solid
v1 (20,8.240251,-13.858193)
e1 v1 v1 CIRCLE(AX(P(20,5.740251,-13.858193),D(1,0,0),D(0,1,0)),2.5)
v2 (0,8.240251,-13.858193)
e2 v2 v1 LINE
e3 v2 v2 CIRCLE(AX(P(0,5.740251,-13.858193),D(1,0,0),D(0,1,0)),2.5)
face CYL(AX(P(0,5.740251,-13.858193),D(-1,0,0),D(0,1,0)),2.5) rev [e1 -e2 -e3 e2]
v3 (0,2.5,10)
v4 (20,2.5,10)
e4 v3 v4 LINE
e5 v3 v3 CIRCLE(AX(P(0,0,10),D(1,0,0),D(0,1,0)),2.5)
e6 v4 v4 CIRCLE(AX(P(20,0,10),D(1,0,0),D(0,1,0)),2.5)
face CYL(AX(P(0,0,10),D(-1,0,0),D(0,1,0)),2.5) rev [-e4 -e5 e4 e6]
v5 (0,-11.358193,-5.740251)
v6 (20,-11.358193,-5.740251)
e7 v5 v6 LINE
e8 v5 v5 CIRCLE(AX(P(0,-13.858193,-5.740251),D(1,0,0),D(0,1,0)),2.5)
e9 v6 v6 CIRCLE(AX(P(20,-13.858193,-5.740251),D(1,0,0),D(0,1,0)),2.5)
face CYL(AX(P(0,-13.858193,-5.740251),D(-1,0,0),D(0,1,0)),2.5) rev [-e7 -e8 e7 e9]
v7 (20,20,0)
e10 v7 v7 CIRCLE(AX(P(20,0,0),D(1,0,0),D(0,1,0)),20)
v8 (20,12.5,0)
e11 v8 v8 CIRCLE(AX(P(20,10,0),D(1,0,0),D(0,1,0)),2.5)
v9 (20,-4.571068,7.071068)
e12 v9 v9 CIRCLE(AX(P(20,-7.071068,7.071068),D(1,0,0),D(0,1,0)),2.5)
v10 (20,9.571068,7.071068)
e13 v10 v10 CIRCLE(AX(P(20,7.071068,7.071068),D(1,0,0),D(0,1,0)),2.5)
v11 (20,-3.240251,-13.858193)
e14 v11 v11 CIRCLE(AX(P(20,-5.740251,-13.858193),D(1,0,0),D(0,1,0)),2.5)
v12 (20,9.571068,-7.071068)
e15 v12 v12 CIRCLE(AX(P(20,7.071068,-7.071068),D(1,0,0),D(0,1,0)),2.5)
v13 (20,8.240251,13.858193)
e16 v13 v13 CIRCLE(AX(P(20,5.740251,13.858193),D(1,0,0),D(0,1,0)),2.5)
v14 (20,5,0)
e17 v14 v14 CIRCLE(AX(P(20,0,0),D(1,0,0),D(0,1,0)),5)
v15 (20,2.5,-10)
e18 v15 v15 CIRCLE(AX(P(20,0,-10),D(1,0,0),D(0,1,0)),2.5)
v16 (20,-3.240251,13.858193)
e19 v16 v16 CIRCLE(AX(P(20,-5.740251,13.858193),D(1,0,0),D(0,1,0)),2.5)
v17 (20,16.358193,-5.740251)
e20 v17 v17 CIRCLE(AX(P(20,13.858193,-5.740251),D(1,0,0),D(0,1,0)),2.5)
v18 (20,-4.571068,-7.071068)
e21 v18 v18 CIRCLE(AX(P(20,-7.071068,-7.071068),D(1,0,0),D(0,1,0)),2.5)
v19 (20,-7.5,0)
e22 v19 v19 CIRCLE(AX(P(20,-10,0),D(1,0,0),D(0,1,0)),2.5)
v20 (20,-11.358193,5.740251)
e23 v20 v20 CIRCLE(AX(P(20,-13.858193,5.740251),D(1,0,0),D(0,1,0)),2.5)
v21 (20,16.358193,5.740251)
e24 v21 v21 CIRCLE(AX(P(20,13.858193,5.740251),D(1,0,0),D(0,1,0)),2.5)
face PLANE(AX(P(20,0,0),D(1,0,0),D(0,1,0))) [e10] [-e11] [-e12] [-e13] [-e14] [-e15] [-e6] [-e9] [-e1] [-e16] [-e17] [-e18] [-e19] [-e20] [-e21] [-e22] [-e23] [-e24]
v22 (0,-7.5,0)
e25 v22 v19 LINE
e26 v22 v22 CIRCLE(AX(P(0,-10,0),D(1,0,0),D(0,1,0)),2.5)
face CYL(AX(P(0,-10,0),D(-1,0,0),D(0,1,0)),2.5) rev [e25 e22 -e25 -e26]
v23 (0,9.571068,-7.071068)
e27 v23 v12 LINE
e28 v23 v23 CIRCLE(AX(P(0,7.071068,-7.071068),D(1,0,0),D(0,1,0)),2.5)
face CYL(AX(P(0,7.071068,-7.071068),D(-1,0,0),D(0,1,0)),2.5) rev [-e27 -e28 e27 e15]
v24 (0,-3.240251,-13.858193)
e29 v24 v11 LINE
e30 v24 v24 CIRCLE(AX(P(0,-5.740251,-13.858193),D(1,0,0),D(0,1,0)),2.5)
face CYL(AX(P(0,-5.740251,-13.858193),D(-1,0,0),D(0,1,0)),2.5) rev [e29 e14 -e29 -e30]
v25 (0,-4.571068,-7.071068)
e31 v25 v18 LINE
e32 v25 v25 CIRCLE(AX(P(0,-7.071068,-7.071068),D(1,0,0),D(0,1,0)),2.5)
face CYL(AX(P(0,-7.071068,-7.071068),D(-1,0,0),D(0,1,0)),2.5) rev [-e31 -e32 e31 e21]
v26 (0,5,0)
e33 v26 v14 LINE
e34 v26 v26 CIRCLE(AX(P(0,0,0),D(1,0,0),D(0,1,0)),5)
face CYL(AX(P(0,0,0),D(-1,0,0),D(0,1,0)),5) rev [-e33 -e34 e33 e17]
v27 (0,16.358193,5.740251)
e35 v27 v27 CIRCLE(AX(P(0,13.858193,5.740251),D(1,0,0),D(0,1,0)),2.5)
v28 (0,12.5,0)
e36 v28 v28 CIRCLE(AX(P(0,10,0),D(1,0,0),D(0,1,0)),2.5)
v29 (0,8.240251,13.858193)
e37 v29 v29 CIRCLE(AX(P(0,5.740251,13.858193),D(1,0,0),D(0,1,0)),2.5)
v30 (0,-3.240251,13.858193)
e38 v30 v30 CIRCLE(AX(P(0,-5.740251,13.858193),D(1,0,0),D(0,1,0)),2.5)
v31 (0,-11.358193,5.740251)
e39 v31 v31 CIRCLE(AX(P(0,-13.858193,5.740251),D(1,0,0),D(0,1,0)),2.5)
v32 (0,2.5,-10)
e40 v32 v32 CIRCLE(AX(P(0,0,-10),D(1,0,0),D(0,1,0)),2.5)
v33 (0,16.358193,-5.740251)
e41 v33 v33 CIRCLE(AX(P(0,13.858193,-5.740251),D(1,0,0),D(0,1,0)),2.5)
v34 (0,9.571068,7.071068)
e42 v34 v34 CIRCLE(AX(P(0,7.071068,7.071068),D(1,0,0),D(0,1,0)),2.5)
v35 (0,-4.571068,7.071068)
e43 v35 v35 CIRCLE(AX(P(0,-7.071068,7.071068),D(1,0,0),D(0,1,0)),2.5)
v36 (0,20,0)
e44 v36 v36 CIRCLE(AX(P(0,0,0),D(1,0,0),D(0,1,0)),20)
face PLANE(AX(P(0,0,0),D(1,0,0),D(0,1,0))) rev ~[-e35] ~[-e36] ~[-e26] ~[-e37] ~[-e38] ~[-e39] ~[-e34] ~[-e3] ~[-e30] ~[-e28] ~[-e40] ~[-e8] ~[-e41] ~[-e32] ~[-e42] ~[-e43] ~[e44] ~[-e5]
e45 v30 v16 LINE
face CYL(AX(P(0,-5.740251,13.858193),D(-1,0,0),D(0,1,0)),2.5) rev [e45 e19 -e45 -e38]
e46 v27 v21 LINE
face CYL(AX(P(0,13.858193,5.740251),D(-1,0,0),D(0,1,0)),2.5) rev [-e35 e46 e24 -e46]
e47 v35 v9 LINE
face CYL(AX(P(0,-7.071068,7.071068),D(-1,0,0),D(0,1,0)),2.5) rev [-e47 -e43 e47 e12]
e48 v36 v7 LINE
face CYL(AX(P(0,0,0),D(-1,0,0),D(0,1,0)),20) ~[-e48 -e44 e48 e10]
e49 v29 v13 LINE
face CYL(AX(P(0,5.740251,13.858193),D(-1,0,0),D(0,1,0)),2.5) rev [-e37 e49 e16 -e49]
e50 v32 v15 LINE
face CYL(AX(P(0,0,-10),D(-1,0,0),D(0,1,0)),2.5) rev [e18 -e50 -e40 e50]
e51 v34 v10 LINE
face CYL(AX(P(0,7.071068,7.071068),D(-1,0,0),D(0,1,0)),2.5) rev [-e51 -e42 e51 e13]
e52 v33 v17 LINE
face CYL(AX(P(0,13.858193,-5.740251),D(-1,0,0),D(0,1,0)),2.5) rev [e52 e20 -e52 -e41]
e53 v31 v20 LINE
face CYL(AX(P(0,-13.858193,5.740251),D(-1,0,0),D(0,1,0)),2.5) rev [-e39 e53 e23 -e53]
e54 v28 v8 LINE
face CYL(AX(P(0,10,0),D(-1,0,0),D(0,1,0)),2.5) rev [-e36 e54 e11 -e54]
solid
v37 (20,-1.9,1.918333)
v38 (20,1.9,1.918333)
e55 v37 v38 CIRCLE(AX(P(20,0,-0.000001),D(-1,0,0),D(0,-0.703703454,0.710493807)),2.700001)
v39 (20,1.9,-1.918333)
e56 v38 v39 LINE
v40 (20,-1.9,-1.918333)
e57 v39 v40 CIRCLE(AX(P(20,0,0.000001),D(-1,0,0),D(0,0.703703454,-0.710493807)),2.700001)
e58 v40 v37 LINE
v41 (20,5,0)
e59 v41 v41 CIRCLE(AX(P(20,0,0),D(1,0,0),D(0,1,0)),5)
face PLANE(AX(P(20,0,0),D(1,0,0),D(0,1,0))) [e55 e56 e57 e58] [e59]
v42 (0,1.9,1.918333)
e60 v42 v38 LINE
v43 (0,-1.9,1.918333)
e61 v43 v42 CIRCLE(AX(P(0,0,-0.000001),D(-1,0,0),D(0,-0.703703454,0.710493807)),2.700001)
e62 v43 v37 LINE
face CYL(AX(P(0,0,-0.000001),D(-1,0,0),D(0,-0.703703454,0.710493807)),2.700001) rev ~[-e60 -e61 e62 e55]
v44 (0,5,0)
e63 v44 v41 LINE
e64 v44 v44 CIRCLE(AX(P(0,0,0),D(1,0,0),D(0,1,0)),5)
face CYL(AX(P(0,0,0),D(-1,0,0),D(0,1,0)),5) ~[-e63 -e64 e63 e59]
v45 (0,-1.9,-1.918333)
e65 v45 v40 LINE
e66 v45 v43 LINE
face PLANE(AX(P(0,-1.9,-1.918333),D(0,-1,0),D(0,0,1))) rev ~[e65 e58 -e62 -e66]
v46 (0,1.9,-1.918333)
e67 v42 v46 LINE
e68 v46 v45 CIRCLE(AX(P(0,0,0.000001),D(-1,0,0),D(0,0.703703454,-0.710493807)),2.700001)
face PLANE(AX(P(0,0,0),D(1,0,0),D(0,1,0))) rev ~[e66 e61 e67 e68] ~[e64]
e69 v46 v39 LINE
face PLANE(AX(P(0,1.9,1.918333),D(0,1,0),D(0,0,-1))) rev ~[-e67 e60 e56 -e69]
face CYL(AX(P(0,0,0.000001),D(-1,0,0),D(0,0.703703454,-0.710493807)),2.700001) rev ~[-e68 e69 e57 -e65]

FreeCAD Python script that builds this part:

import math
import FreeCAD as App
import Part
import Sketcher

doc = App.newDocument("Part")
params = doc.addObject("Spreadsheet::Sheet", "Params")
for row, (alias, value) in enumerate([
    ("sketch1_diameter", "10 mm"),
    ("sketch1_radius", "2.700001 mm"),
    ("pad1_length", "20 mm"),
    ("sketch2_diameter", "40 mm"),
    ("sketch2_diameter2", "5 mm"),
    ("sketch2_diameter3", "10 mm"),
    ("pad2_length", "20 mm"),
], start=1):
    params.set(f"A{row}", alias)
    params.set(f"B{row}", "=" + value)
    params.setAlias(f"B{row}", alias)

body = doc.addObject("PartDesign::Body", "Body")

sketch1 = body.newObject("Sketcher::SketchObject", "Sketch")
sketch1.AttachmentSupport = (doc.getObject("YZ_Plane"), [""])
sketch1.MapMode = "FlatFace"
sketch1.addGeometry([
    Part.Circle(App.Vector(0, 0, 0), App.Vector(0, 0, 1), 5),
    Part.LineSegment(App.Vector(1.9, 1.9, 0), App.Vector(1.9, -1.9, 0)),
    Part.ArcOfCircle(Part.Circle(App.Vector(0, 0, 0), App.Vector(0, 0, 1), 2.7), math.radians(-135), math.radians(-45)),
    Part.LineSegment(App.Vector(-1.9, -1.9, 0), App.Vector(-1.9, 1.9, 0)),
    Part.ArcOfCircle(Part.Circle(App.Vector(0, 0, 0), App.Vector(0, 0, 1), 2.7), math.radians(45), math.radians(135)),
], False)
sketch1.addConstraint([
    Sketcher.Constraint("Coincident", 1, 2, 2, 2),
    Sketcher.Constraint("Coincident", 2, 1, 3, 1),
    Sketcher.Constraint("Coincident", 3, 2, 4, 2),
    Sketcher.Constraint("Coincident", 4, 1, 1, 1),
    Sketcher.Constraint("Vertical", 1),
    Sketcher.Constraint("Vertical", 3),
    Sketcher.Constraint("Coincident", 0, 3, -1, 1),
    Sketcher.Constraint("Coincident", 2, 3, -1, 1),
    Sketcher.Constraint("Coincident", 4, 3, -1, 1),
    Sketcher.Constraint("Equal", 2, 4),
    Sketcher.Constraint("Horizontal", 1, 2, 2, 1),
    Sketcher.Constraint("Diameter", 0, 10.0),
    Sketcher.Constraint("Radius", 2, 2.700001),
    Sketcher.Constraint("DistanceX", -1, 1, 1, 2, 1.9),
])
sketch1.setExpression("Constraints[11]", "Params.sketch1_diameter")
sketch1.setExpression("Constraints[12]", "Params.sketch1_radius")
pad1 = body.newObject("PartDesign::Pad", "Pad")
pad1.Profile = sketch1
pad1.setExpression("Length", "Params.pad1_length")
body2 = doc.addObject("PartDesign::Body", "Body001")

sketch2 = body2.newObject("Sketcher::SketchObject", "Sketch001")
sketch2.AttachmentSupport = (doc.getObject("YZ_Plane001"), [""])
sketch2.MapMode = "FlatFace"
sketch2.addGeometry([
    Part.Circle(App.Vector(0, 0, 0), App.Vector(0, 0, 1), 20),
    Part.Circle(App.Vector(-5.7, -13.9, 0), App.Vector(0, 0, 1), 2.5),
    Part.Circle(App.Vector(-13.9, -5.7, 0), App.Vector(0, 0, 1), 2.5),
    Part.Circle(App.Vector(-7.1, -7.1, 0), App.Vector(0, 0, 1), 2.5),
    Part.Circle(App.Vector(5.7, -13.9, 0), App.Vector(0, 0, 1), 2.5),
    Part.Circle(App.Vector(0, -10, 0), App.Vector(0, 0, 1), 2.5),
    Part.Circle(App.Vector(7.1, -7.1, 0), App.Vector(0, 0, 1), 2.5),
    Part.Circle(App.Vector(13.9, -5.7, 0), App.Vector(0, 0, 1), 2.5),
    Part.Circle(App.Vector(-10, 0, 0), App.Vector(0, 0, 1), 2.5),
    Part.Circle(App.Vector(-13.9, 5.7, 0), App.Vector(0, 0, 1), 2.5),
    Part.Circle(App.Vector(-7.1, 7.1, 0), App.Vector(0, 0, 1), 2.5),
    Part.Circle(App.Vector(-5.7, 13.9, 0), App.Vector(0, 0, 1), 2.5),
    Part.Circle(App.Vector(0, 0, 0), App.Vector(0, 0, 1), 5),
    Part.Circle(App.Vector(7.1, 7.1, 0), App.Vector(0, 0, 1), 2.5),
    Part.Circle(App.Vector(10, 0, 0), App.Vector(0, 0, 1), 2.5),
    Part.Circle(App.Vector(13.9, 5.7, 0), App.Vector(0, 0, 1), 2.5),
    Part.Circle(App.Vector(0, 10, 0), App.Vector(0, 0, 1), 2.5),
    Part.Circle(App.Vector(5.7, 13.9, 0), App.Vector(0, 0, 1), 2.5),
], False)
sketch2.addConstraint([
    Sketcher.Constraint("Coincident", 0, 3, -1, 1),
    Sketcher.Constraint("Coincident", 12, 3, -1, 1),
    Sketcher.Constraint("Equal", 1, 2),
    Sketcher.Constraint("Equal", 2, 3),
    Sketcher.Constraint("Equal", 3, 4),
    Sketcher.Constraint("Equal", 4, 5),
    Sketcher.Constraint("Equal", 5, 6),
    Sketcher.Constraint("Equal", 6, 7),
    Sketcher.Constraint("Equal", 7, 8),
    Sketcher.Constraint("Equal", 8, 9),
    Sketcher.Constraint("Equal", 9, 10),
    Sketcher.Constraint("Equal", 10, 11),
    Sketcher.Constraint("Equal", 11, 13),
    Sketcher.Constraint("Equal", 13, 14),
    Sketcher.Constraint("Equal", 14, 15),
    Sketcher.Constraint("Equal", 15, 16),
    Sketcher.Constraint("Equal", 16, 17),
    Sketcher.Constraint("Symmetric", 7, 3, 9, 3, -1, 1),
    Sketcher.Constraint("Symmetric", 6, 3, 10, 3, -1, 1),
    Sketcher.Constraint("Symmetric", 4, 3, 11, 3, -1, 1),
    Sketcher.Constraint("Symmetric", 3, 3, 13, 3, -1, 1),
    Sketcher.Constraint("Symmetric", 8, 3, 14, 3, -1, 1),
    Sketcher.Constraint("Symmetric", 2, 3, 15, 3, -1, 1),
    Sketcher.Constraint("Symmetric", 5, 3, 16, 3, -1, 1),
    Sketcher.Constraint("Symmetric", 1, 3, 17, 3, -1, 1),
    Sketcher.Constraint("Symmetric", 1, 3, 4, 3, -2),
    Sketcher.Constraint("Symmetric", 3, 3, 6, 3, -2),
    Sketcher.Constraint("Symmetric", 2, 3, 7, 3, -2),
    Sketcher.Constraint("PointOnObject", 5, 3, -2),
    Sketcher.Constraint("PointOnObject", 8, 3, -1),
    Sketcher.Constraint("Diameter", 0, 40.0),
    Sketcher.Constraint("Diameter", 1, 5.0),
    Sketcher.Constraint("Diameter", 12, 10.0),
    Sketcher.Constraint("DistanceY", 5, 3, -1, 1, 10.0),
    Sketcher.Constraint("DistanceX", 8, 3, -1, 1, 10.0),
    Sketcher.Constraint("DistanceX", 1, 3, -1, 1, 5.740251),
    Sketcher.Constraint("DistanceY", 2, 3, -1, 1, 5.740251),
    Sketcher.Constraint("DistanceX", 3, 3, -1, 1, 7.071068),
    Sketcher.Constraint("DistanceY", 3, 3, -1, 1, 7.071068),
    Sketcher.Constraint("DistanceX", 2, 3, 1, 3, 8.117942),
    Sketcher.Constraint("DistanceY", 1, 3, 2, 3, 8.117942),
])
sketch2.setExpression("Constraints[30]", "Params.sketch2_diameter")
sketch2.setExpression("Constraints[31]", "Params.sketch2_diameter2")
sketch2.setExpression("Constraints[32]", "Params.sketch2_diameter3")
pad2 = body2.newObject("PartDesign::Pad", "Pad001")
pad2.Profile = sketch2
pad2.setExpression("Length", "Params.pad2_length")

doc.recompute()
